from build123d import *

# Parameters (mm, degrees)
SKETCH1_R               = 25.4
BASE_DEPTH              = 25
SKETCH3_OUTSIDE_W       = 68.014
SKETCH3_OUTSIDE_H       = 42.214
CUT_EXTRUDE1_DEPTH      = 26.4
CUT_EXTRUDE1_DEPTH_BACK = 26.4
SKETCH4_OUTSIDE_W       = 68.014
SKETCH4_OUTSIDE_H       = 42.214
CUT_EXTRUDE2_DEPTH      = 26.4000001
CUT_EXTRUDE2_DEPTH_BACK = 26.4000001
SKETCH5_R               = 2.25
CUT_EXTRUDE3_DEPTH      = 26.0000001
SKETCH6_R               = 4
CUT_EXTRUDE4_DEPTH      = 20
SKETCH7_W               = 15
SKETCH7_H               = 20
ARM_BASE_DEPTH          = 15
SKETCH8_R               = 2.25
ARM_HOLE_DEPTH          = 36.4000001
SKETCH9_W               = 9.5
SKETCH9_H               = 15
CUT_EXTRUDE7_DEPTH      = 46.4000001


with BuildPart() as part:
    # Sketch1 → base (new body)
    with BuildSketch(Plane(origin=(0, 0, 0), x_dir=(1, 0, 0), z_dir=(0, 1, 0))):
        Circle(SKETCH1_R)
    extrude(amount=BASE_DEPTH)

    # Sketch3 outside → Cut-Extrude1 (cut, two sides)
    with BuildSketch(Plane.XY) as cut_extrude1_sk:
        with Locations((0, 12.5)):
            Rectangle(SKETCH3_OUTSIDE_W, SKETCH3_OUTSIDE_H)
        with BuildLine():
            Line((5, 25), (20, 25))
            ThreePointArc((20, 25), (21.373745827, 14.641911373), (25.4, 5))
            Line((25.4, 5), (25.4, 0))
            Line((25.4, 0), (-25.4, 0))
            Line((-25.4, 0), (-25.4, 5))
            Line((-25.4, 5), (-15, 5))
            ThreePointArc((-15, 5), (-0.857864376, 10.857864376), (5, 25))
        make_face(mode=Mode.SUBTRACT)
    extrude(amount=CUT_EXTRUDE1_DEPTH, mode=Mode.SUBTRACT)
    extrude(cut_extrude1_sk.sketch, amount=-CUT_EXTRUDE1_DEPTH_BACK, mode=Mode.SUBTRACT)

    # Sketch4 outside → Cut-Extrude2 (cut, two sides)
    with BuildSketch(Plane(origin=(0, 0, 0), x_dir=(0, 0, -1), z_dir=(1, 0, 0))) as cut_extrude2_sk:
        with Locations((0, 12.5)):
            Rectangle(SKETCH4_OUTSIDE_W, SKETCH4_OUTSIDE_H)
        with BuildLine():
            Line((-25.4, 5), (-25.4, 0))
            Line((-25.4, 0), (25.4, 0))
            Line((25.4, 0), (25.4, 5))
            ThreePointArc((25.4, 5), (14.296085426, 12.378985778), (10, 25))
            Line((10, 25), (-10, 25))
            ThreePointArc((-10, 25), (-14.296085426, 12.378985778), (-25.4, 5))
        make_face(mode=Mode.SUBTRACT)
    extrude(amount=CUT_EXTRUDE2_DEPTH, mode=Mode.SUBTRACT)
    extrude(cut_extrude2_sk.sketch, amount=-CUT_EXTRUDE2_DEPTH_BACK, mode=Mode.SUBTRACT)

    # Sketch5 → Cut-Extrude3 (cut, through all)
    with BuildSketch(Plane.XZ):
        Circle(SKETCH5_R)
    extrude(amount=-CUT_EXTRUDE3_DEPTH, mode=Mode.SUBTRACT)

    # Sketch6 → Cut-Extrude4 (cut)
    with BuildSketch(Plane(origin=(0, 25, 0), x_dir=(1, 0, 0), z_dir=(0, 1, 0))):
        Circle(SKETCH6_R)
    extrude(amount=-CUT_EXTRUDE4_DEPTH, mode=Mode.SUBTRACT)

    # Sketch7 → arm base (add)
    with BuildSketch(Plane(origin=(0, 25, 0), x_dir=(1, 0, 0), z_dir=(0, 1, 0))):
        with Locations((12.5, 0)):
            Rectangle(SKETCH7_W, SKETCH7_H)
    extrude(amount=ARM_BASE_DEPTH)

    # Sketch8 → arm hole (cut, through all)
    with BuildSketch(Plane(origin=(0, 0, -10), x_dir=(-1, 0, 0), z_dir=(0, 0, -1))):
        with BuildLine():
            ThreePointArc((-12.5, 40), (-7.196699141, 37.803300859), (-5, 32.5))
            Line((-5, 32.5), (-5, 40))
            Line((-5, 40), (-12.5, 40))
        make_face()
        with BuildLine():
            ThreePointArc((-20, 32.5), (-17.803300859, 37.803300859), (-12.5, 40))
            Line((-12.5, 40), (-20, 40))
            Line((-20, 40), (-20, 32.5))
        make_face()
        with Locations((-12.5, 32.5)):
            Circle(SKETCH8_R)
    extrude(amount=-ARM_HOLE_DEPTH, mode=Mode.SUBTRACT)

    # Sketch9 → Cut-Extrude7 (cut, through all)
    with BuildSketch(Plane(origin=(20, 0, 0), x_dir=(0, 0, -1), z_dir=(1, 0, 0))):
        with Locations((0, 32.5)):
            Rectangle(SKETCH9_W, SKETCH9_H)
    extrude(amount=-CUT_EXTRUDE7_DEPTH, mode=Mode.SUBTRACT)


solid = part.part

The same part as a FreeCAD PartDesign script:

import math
import FreeCAD as App
import Part
import Sketcher
from FreeCAD import Vector

doc = App.newDocument("Part")
body = doc.addObject("PartDesign::Body", "Body")

# Sketch on XZ plane
sketch1 = body.newObject("Sketcher::SketchObject", "Sketch")
sketch1.AttachmentSupport = (doc.getObject("XZ_Plane"), [""])
sketch1.MapMode = "FlatFace"
sketch1.addGeometry(Part.Circle(Vector(0, 0, 0), Vector(0, 0, 1), 25), False)
sketch1.addConstraint([
    Sketcher.Constraint("Coincident", 0, 3, -1, 1),
    Sketcher.Constraint("Diameter", 0, 50.8),
])
pad1 = body.newObject("PartDesign::Pad", "Pad")
pad1.Profile = sketch1
pad1.Length = 25
pad1.Reversed = True

# Sketch on XY plane
sketch2 = body.newObject("Sketcher::SketchObject", "Sketch001")
sketch2.AttachmentSupport = (doc.getObject("XY_Plane"), [""])
sketch2.MapMode = "FlatFace"
sketch2.addGeometry([
    Part.LineSegment(Vector(-34, 34, 0), Vector(-34, -9, 0)),  # 0
    Part.LineSegment(Vector(-34, -9, 0), Vector(34, -9, 0)),  # 1
    Part.LineSegment(Vector(34, -9, 0), Vector(34, 34, 0)),  # 2
    Part.LineSegment(Vector(34, 34, 0), Vector(-34, 34, 0)),  # 3
    Part.ArcOfCircle(Part.Circle(Vector(-15, 25, 0), Vector(0, 0, 1), 20), math.radians(-90), math.radians(0)),  # 4
    Part.LineSegment(Vector(5, 25, 0), Vector(20, 25, 0)),  # 5
    Part.ArcOfCircle(Part.Circle(Vector(60, 25, 0), Vector(0, 0, 1), 40), math.radians(-180), math.radians(-150)),  # 6
    Part.LineSegment(Vector(25, 5, 0), Vector(25, 0, 0)),  # 7
    Part.LineSegment(Vector(25, 0, 0), Vector(-25, 0, 0)),  # 8
    Part.LineSegment(Vector(-25, 0, 0), Vector(-25, 5, 0)),  # 9
    Part.LineSegment(Vector(-25, 5, 0), Vector(-15, 5, 0)),  # 10
], False)
sketch2.addConstraint([
    Sketcher.Constraint("Coincident", 0, 2, 1, 1),
    Sketcher.Constraint("Coincident", 1, 2, 2, 1),
    Sketcher.Constraint("Coincident", 2, 2, 3, 1),
    Sketcher.Constraint("Coincident", 3, 2, 0, 1),
    Sketcher.Constraint("Coincident", 4, 2, 5, 1),
    Sketcher.Constraint("Coincident", 5, 2, 6, 1),
    Sketcher.Constraint("Coincident", 6, 2, 7, 1),
    Sketcher.Constraint("Coincident", 7, 2, 8, 1),
    Sketcher.Constraint("Coincident", 8, 2, 9, 1),
    Sketcher.Constraint("Coincident", 9, 2, 10, 1),
    Sketcher.Constraint("Tangent", 10, 2, 4, 1),
    Sketcher.Constraint("Vertical", 0),
    Sketcher.Constraint("Horizontal", 1),
    Sketcher.Constraint("Vertical", 2),
    Sketcher.Constraint("Horizontal", 3),
    Sketcher.Constraint("Horizontal", 5),
    Sketcher.Constraint("Vertical", 7),
    Sketcher.Constraint("Horizontal", 8),
    Sketcher.Constraint("Vertical", 9),
    Sketcher.Constraint("Horizontal", 10),
    Sketcher.Constraint("Symmetric", 7, 2, 8, 2, -1, 1),
    Sketcher.Constraint("Horizontal", 4, 3, 6, 3),
    Sketcher.Constraint("Horizontal", 6, 3, 4, 2),
    Sketcher.Constraint("Horizontal", 6, 2, 9, 2),
    Sketcher.Constraint("Radius", 4, 20.0),
    Sketcher.Constraint("DistanceX", 5, 1, 5, 2, 15.0),
    Sketcher.Constraint("DistanceY", 7, 2, 7, 1, 5.0),
    Sketcher.Constraint("DistanceX", 8, 2, 8, 1, 50.8),
    Sketcher.Constraint("DistanceX", 10, 1, 10, 2, 10.4),
    Sketcher.Constraint("DistanceX", 1, 1, 1, 2, 68.014),
    Sketcher.Constraint("DistanceY", 0, 2, 0, 1, 42.214),
    Sketcher.Constraint("DistanceX", 0, 2, -1, 1, 34.007),
    Sketcher.Constraint("DistanceY", 0, 2, -1, 1, 8.607),
])
pocket1 = body.newObject("PartDesign::Pocket", "Pocket")
pocket1.Profile = sketch2
pocket1.Type = "ThroughAll"
pocket1.Midplane = True

# Sketch on YZ plane
sketch3 = body.newObject("Sketcher::SketchObject", "Sketch002")
sketch3.AttachmentSupport = (doc.getObject("YZ_Plane"), [""])
sketch3.MapMode = "FlatFace"
sketch3.addGeometry([
    Part.LineSegment(Vector(34, 34, 0), Vector(-9, 34, 0)),  # 0
    Part.LineSegment(Vector(-9, 34, 0), Vector(-9, -34, 0)),  # 1
    Part.LineSegment(Vector(-9, -34, 0), Vector(34, -34, 0)),  # 2
    Part.LineSegment(Vector(34, -34, 0), Vector(34, 34, 0)),  # 3
    Part.LineSegment(Vector(0, 25, 0), Vector(5, 25, 0)),  # 4
    Part.ArcOfCircle(Part.Circle(Vector(25, 31, 0), Vector(0, 0, 1), 21), math.radians(-165), math.radians(-90)),  # 5
    Part.LineSegment(Vector(25, 10, 0), Vector(25, -10, 0)),  # 6
    Part.ArcOfCircle(Part.Circle(Vector(25, -31, 0), Vector(0, 0, 1), 21), math.radians(90), math.radians(165)),  # 7
    Part.LineSegment(Vector(5, -25, 0), Vector(0, -25, 0)),  # 8
    Part.LineSegment(Vector(0, -25, 0), Vector(0, 25, 0)),  # 9
], False)
sketch3.addConstraint([
    Sketcher.Constraint("Coincident", 0, 2, 1, 1),
    Sketcher.Constraint("Coincident", 1, 2, 2, 1),
    Sketcher.Constraint("Coincident", 2, 2, 3, 1),
    Sketcher.Constraint("Coincident", 3, 2, 0, 1),
    Sketcher.Constraint("Coincident", 4, 2, 5, 1),
    Sketcher.Constraint("Coincident", 5, 2, 6, 1),
    Sketcher.Constraint("Coincident", 6, 2, 7, 1),
    Sketcher.Constraint("Coincident", 7, 2, 8, 1),
    Sketcher.Constraint("Coincident", 8, 2, 9, 1),
    Sketcher.Constraint("Coincident", 9, 2, 4, 1),
    Sketcher.Constraint("Horizontal", 0),
    Sketcher.Constraint("Vertical", 1),
    Sketcher.Constraint("Horizontal", 2),
    Sketcher.Constraint("Vertical", 3),
    Sketcher.Constraint("Horizontal", 4),
    Sketcher.Constraint("Vertical", 6),
    Sketcher.Constraint("Horizontal", 8),
    Sketcher.Constraint("Vertical", 9),
    Sketcher.Constraint("Equal", 5, 7),
    Sketcher.Constraint("Symmetric", 8, 2, 9, 2, -1, 1),
    Sketcher.Constraint("Symmetric", 5, 3, 7, 3, -1),
    Sketcher.Constraint("Vertical", 7, 3, 5, 2),
    Sketcher.Constraint("DistanceX", 4, 1, 4, 2, 5.0),
    Sketcher.Constraint("DistanceY", 6, 2, 6, 1, 20.0),
    Sketcher.Constraint("DistanceY", 9, 1, 9, 2, 50.8),
    Sketcher.Constraint("DistanceX", -1, 1, 5, 3, 25.0),
    Sketcher.Constraint("DistanceX", 0, 2, 0, 1, 42.214),
    Sketcher.Constraint("DistanceY", 1, 2, 1, 1, 68.014),
    Sketcher.Constraint("DistanceX", 0, 2, -1, 1, 8.607),
    Sketcher.Constraint("DistanceY", -1, 1, 0, 2, 34.007),
])
pocket2 = body.newObject("PartDesign::Pocket", "Pocket001")
pocket2.Profile = sketch3
pocket2.Type = "ThroughAll"
pocket2.Midplane = True

# Sketch on XZ plane
sketch4 = body.newObject("Sketcher::SketchObject", "Sketch003")
sketch4.AttachmentSupport = (doc.getObject("XZ_Plane"), [""])
sketch4.MapMode = "FlatFace"
sketch4.addGeometry(Part.Circle(Vector(0, 0, 0), Vector(0, 0, 1), 2.2), False)
sketch4.addConstraint([
    Sketcher.Constraint("Coincident", 0, 3, -1, 1),
    Sketcher.Constraint("Diameter", 0, 4.5),
])
pocket3 = body.newObject("PartDesign::Pocket", "Pocket002")
pocket3.Profile = sketch4
pocket3.Type = "ThroughAll"

# Sketch on XZ plane
sketch5 = body.newObject("Sketcher::SketchObject", "Sketch004")
sketch5.AttachmentSupport = (doc.getObject("XZ_Plane"), [""])
sketch5.MapMode = "FlatFace"
sketch5.AttachmentOffset = App.Placement(Vector(0, 0, -25), App.Rotation())
sketch5.addGeometry(Part.Circle(Vector(0, 0, 0), Vector(0, 0, 1), 4), False)
sketch5.addConstraint([
    Sketcher.Constraint("Coincident", 0, 3, -1, 1),
    Sketcher.Constraint("Diameter", 0, 8.0),
])
pocket4 = body.newObject("PartDesign::Pocket", "Pocket003")
pocket4.Profile = sketch5
pocket4.Length = 20
pocket4.Reversed = True

# Sketch on XZ plane
sketch6 = body.newObject("Sketcher::SketchObject", "Sketch005")
sketch6.AttachmentSupport = (doc.getObject("XZ_Plane"), [""])
sketch6.MapMode = "FlatFace"
sketch6.AttachmentOffset = App.Placement(Vector(0, 0, -25), App.Rotation())
sketch6.addGeometry([
    Part.LineSegment(Vector(5, -10, 0), Vector(5, 10, 0)),
    Part.LineSegment(Vector(5, 10, 0), Vector(20, 10, 0)),
    Part.LineSegment(Vector(20, 10, 0), Vector(20, -10, 0)),
    Part.LineSegment(Vector(20, -10, 0), Vector(5, -10, 0)),
], False)
sketch6.addConstraint([
    Sketcher.Constraint("Coincident", 0, 2, 1, 1),
    Sketcher.Constraint("Coincident", 1, 2, 2, 1),
    Sketcher.Constraint("Coincident", 2, 2, 3, 1),
    Sketcher.Constraint("Coincident", 3, 2, 0, 1),
    Sketcher.Constraint("Vertical", 0),
    Sketcher.Constraint("Horizontal", 1),
    Sketcher.Constraint("Vertical", 2),
    Sketcher.Constraint("Horizontal", 3),
    Sketcher.Constraint("DistanceX", 1, 1, 1, 2, 15.0),
    Sketcher.Constraint("DistanceY", 0, 1, 0, 2, 20.0),
    Sketcher.Constraint("DistanceX", -1, 1, 0, 2, 5.0),
    Sketcher.Constraint("DistanceY", -1, 1, 0, 2, 10.0),
])
pad2 = body.newObject("PartDesign::Pad", "Pad001")
pad2.Profile = sketch6
pad2.Length = 15
pad2.Reversed = True

# Sketch on XY plane
sketch7 = body.newObject("Sketcher::SketchObject", "Sketch006")
sketch7.AttachmentSupport = (doc.getObject("XY_Plane"), [""])
sketch7.MapMode = "FlatFace"
sketch7.AttachmentOffset = App.Placement(Vector(0, 0, -10), App.Rotation())
sketch7.addGeometry([
    Part.ArcOfCircle(Part.Circle(Vector(12.5, 32.5, 0), Vector(0, 0, 1), 7.5), math.radians(90), math.radians(180)),  # 0
    Part.LineSegment(Vector(5, 32.5, 0), Vector(5, 40, 0)),  # 1
    Part.LineSegment(Vector(5, 40, 0), Vector(12.5, 40, 0)),  # 2
    Part.ArcOfCircle(Part.Circle(Vector(12.5, 32.5, 0), Vector(0, 0, 1), 7.5), math.radians(0), math.radians(90)),  # 3
    Part.LineSegment(Vector(12.5, 40, 0), Vector(20, 40, 0)),  # 4
    Part.LineSegment(Vector(20, 40, 0), Vector(20, 32.5, 0)),  # 5
    Part.Circle(Vector(12.5, 32.5, 0), Vector(0, 0, 1), 2.2),  # 6
], False)
sketch7.addConstraint([
    Sketcher.Constraint("Tangent", 0, 2, 1, 1),
    Sketcher.Constraint("Coincident", 1, 2, 2, 1),
    Sketcher.Constraint("Tangent", 2, 2, 0, 1),
    Sketcher.Constraint("Tangent", 3, 2, 4, 1),
    Sketcher.Constraint("Coincident", 4, 2, 5, 1),
    Sketcher.Constraint("Tangent", 5, 2, 3, 1),
    Sketcher.Constraint("Vertical", 1),
    Sketcher.Constraint("Horizontal", 2),
    Sketcher.Constraint("Horizontal", 4),
    Sketcher.Constraint("Vertical", 5),
    Sketcher.Constraint("Coincident", 3, 3, 0, 3),
    Sketcher.Constraint("Coincident", 6, 3, 0, 3),
    Sketcher.Constraint("Equal", 0, 3),
    Sketcher.Constraint("Diameter", 6, 4.5),
    Sketcher.Constraint("Radius", 0, 7.5),
    Sketcher.Constraint("DistanceX", -1, 1, 0, 2, 5.0),
    Sketcher.Constraint("DistanceY", -1, 1, 1, 2, 40.0),
])
pocket5 = body.newObject("PartDesign::Pocket", "Pocket004")
pocket5.Profile = sketch7
pocket5.Type = "ThroughAll"
pocket5.Reversed = True

# Sketch on YZ plane
sketch8 = body.newObject("Sketcher::SketchObject", "Sketch007")
sketch8.AttachmentSupport = (doc.getObject("YZ_Plane"), [""])
sketch8.MapMode = "FlatFace"
sketch8.AttachmentOffset = App.Placement(Vector(0, 0, 20), App.Rotation())
sketch8.addGeometry([
    Part.LineSegment(Vector(40, 5, 0), Vector(25, 5, 0)),
    Part.LineSegment(Vector(25, 5, 0), Vector(25, -5, 0)),
    Part.LineSegment(Vector(25, -5, 0), Vector(40, -5, 0)),
    Part.LineSegment(Vector(40, -5, 0), Vector(40, 5, 0)),
], False)
sketch8.addConstraint([
    Sketcher.Constraint("Coincident", 0, 2, 1, 1),
    Sketcher.Constraint("Coincident", 1, 2, 2, 1),
    Sketcher.Constraint("Coincident", 2, 2, 3, 1),
    Sketcher.Constraint("Coincident", 3, 2, 0, 1),
    Sketcher.Constraint("Horizontal", 0),
    Sketcher.Constraint("Vertical", 1),
    Sketcher.Constraint("Horizontal", 2),
    Sketcher.Constraint("Vertical", 3),
    Sketcher.Constraint("DistanceX", 0, 2, 0, 1, 15.0),
    Sketcher.Constraint("DistanceY", 1, 2, 1, 1, 9.5),
    Sketcher.Constraint("DistanceX", -1, 1, 0, 2, 25.0),
    Sketcher.Constraint("DistanceY", -1, 1, 0, 2, 4.75),
])
pocket6 = body.newObject("PartDesign::Pocket", "Pocket005")
pocket6.Profile = sketch8
pocket6.Type = "ThroughAll"

doc.recompute()
